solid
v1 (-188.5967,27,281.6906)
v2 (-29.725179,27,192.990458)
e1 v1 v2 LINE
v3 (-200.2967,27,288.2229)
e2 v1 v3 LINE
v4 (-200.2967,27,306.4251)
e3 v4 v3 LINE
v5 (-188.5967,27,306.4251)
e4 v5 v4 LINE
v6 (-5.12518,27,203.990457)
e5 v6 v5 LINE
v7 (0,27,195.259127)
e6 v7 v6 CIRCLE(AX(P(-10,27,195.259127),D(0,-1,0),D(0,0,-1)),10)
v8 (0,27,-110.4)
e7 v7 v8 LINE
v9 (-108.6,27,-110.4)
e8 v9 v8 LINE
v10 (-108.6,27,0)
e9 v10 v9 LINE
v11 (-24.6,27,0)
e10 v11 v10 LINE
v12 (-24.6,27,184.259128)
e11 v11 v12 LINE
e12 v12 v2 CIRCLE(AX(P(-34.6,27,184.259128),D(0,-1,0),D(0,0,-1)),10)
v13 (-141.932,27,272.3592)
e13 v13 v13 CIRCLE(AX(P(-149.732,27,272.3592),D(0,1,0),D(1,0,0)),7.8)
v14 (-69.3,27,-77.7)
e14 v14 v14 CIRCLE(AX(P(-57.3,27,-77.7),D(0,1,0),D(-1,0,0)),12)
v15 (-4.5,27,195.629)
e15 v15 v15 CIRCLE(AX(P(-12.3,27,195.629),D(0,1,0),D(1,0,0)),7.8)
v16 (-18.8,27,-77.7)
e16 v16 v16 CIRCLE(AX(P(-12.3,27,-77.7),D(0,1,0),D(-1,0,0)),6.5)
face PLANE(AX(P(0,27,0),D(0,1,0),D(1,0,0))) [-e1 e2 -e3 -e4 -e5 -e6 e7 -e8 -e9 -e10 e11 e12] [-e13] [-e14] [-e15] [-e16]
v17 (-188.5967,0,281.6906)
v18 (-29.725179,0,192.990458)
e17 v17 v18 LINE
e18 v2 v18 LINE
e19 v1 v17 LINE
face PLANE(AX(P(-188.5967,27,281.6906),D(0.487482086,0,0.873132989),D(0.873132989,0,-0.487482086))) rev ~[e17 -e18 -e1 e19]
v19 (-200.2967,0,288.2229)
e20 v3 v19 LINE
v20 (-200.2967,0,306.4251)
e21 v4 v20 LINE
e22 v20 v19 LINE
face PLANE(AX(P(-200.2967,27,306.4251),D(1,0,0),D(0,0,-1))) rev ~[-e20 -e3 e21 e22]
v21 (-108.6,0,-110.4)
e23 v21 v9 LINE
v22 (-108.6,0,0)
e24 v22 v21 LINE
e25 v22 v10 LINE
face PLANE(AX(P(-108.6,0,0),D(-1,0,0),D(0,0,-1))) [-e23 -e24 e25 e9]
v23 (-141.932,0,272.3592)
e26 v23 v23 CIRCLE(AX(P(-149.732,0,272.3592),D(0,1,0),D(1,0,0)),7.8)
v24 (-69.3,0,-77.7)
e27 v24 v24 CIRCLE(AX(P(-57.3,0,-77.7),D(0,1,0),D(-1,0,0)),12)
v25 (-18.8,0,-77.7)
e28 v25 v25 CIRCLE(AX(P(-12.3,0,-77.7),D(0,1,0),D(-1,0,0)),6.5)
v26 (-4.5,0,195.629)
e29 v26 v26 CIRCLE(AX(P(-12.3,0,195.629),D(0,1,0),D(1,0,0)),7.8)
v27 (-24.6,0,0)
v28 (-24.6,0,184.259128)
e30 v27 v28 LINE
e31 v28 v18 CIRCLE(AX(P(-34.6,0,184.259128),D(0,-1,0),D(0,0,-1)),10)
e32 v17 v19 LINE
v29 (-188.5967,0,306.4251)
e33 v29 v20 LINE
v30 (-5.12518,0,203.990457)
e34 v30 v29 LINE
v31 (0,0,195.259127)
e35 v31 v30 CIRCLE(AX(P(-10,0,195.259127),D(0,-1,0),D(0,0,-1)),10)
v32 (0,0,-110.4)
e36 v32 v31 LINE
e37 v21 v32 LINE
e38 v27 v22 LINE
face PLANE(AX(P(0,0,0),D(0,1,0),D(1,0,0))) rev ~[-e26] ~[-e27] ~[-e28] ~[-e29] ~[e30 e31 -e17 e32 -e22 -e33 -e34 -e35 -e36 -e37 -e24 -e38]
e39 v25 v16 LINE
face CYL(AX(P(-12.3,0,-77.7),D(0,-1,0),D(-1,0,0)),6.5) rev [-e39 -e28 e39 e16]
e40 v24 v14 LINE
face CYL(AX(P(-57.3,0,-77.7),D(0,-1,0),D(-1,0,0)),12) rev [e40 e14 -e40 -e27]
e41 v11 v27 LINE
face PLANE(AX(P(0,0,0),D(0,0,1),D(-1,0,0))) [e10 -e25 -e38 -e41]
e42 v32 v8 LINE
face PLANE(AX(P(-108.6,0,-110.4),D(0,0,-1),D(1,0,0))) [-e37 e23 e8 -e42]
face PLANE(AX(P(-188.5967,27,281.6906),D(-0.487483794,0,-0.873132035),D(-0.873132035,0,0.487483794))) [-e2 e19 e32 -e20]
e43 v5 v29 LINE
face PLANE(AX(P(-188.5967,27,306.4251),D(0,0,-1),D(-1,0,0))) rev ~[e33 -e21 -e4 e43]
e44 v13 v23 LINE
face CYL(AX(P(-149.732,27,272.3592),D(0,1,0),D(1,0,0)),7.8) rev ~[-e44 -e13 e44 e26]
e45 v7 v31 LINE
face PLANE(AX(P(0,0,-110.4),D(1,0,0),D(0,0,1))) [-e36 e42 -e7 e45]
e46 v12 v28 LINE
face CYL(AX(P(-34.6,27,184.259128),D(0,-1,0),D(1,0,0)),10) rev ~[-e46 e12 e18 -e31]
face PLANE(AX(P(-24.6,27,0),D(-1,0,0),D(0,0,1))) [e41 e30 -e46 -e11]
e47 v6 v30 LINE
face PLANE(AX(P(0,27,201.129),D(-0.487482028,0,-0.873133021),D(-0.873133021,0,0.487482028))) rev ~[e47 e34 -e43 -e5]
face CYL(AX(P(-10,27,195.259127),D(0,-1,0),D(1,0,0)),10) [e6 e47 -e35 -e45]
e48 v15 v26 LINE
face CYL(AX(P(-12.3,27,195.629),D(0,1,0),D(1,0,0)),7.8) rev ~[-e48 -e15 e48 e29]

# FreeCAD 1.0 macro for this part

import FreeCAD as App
import Part
import Sketcher
Q = App.Units.Quantity


def edges_at(feature, points):
    """Names of the edges that pass closest to the given points."""
    edges = feature.Shape.Edges
    near = lambda p: min(range(len(edges)), key=lambda i: edges[i].distToShape(Part.Vertex(*p))[0])
    return sorted({f"Edge{near(p) + 1}" for p in points})

doc = App.newDocument("Part")
body = doc.addObject("PartDesign::Body", "Body")

# Sketch on XZ plane
sketch1 = body.newObject("Sketcher::SketchObject", "Sketch")
sketch1.AttachmentSupport = (doc.getObject("XZ_Plane"), [""])
sketch1.MapMode = "FlatFace"
sketch1.addGeometry(Part.LineSegment(App.Vector(-108.6, 0, 0), App.Vector(0, 0, 0)), False)
sketch1.addGeometry(Part.LineSegment(App.Vector(0, 0, 0), App.Vector(0, -110.4, 0)), False)
sketch1.addGeometry(Part.LineSegment(App.Vector(0, -110.4, 0), App.Vector(-108.6, -110.4, 0)), False)
sketch1.addGeometry(Part.LineSegment(App.Vector(-108.6, -110.4, 0), App.Vector(-108.6, 0, 0)), False)
sketch1.addGeometry(Part.Circle(App.Vector(-12.3, -77.7, 0), App.Vector(0, 0, 1), 6.5), False)
sketch1.addGeometry(Part.Circle(App.Vector(-57.3, -77.7, 0), App.Vector(0, 0, 1), 12), False)
sketch1.addConstraint(Sketcher.Constraint("Coincident", 0, 2, 1, 1))
sketch1.addConstraint(Sketcher.Constraint("Coincident", 1, 2, 2, 1))
sketch1.addConstraint(Sketcher.Constraint("Coincident", 2, 2, 3, 1))
sketch1.addConstraint(Sketcher.Constraint("Coincident", 3, 2, 0, 1))
sketch1.addConstraint(Sketcher.Constraint("Horizontal", 0))
sketch1.addConstraint(Sketcher.Constraint("Vertical", 1))
sketch1.addConstraint(Sketcher.Constraint("Horizontal", 2))
sketch1.addConstraint(Sketcher.Constraint("Vertical", 3))
sketch1.addConstraint(Sketcher.Constraint("Coincident", 0, 2, -1, 1))
sketch1.addConstraint(Sketcher.Constraint("Horizontal", 4, 3, 5, 3))
sketch1.addConstraint(Sketcher.Constraint("Diameter", 4, Q("13 mm")))
sketch1.addConstraint(Sketcher.Constraint("Diameter", 5, Q("24 mm")))
sketch1.addConstraint(Sketcher.Constraint("DistanceX", 0, 1, 0, 2, Q("108.6 mm")))
sketch1.addConstraint(Sketcher.Constraint("DistanceY", 1, 2, 1, 1, Q("110.4 mm")))
sketch1.addConstraint(Sketcher.Constraint("DistanceX", 5, 3, 4, 3, Q("45 mm")))
sketch1.addConstraint(Sketcher.Constraint("DistanceX", 4, 3, -1, 1, Q("12.3 mm")))
sketch1.addConstraint(Sketcher.Constraint("DistanceY", 1, 2, 4, 3, Q("32.7 mm")))
pad1 = body.newObject("PartDesign::Pad", "Pad")
pad1.Profile = sketch1
pad1.Length = 27
pad1.Reversed = True

# Sketch on XZ plane
sketch2 = body.newObject("Sketcher::SketchObject", "Sketch001")
sketch2.AttachmentSupport = (doc.getObject("XZ_Plane"), [""])
sketch2.MapMode = "FlatFace"
sketch2.AttachmentOffset = App.Placement(App.Vector(0, 0, -27), App.Rotation())
sketch2.addGeometry(Part.LineSegment(App.Vector(0, 0, 0), App.Vector(-24.6, 0, 0)), False)
sketch2.addGeometry(Part.LineSegment(App.Vector(-24.6, 0, 0), App.Vector(-24.6, 190.129, 0)), False)
sketch2.addGeometry(Part.LineSegment(App.Vector(-24.6, 190.129, 0), App.Vector(-188.5967, 281.6906, 0)), False)
sketch2.addGeometry(Part.LineSegment(App.Vector(-188.5967, 281.6906, 0), App.Vector(-188.5967, 306.4251, 0)), False)
sketch2.addGeometry(Part.LineSegment(App.Vector(-188.5967, 306.4251, 0), App.Vector(0, 201.129, 0)), False)
sketch2.addGeometry(Part.LineSegment(App.Vector(0, 201.129, 0), App.Vector(0, 0, 0)), False)
sketch2.addGeometry(Part.Circle(App.Vector(-12.3, 195.629, 0), App.Vector(0, 0, 1), 7.8), False)
sketch2.addConstraint(Sketcher.Constraint("Coincident", 0, 2, 1, 1))
sketch2.addConstraint(Sketcher.Constraint("Coincident", 1, 2, 2, 1))
sketch2.addConstraint(Sketcher.Constraint("Coincident", 2, 2, 3, 1))
sketch2.addConstraint(Sketcher.Constraint("Coincident", 3, 2, 4, 1))
sketch2.addConstraint(Sketcher.Constraint("Coincident", 4, 2, 5, 1))
sketch2.addConstraint(Sketcher.Constraint("Coincident", 5, 2, 0, 1))
sketch2.addConstraint(Sketcher.Constraint("Horizontal", 0))
sketch2.addConstraint(Sketcher.Constraint("Vertical", 1))
sketch2.addConstraint(Sketcher.Constraint("Vertical", 3))
sketch2.addConstraint(Sketcher.Constraint("Vertical", 5))
sketch2.addConstraint(Sketcher.Constraint("Coincident", 5, 2, -1, 1))
sketch2.addConstraint(Sketcher.Constraint("Parallel", 2, 4))
sketch2.addConstraint(Sketcher.Constraint("Diameter", 6, Q("15.6 mm")))
sketch2.addConstraint(Sketcher.Constraint("Distance", 4, Q("216 mm")))
sketch2.addConstraint(Sketcher.Constraint("DistanceX", 0, 2, 0, 1, Q("24.6 mm")))
sketch2.addConstraint(Sketcher.Constraint("DistanceX", 6, 3, -1, 1, Q("12.3 mm")))
sketch2.addConstraint(Sketcher.Constraint("DistanceY", 1, 2, 6, 3, Q("5.5 mm")))
sketch2.addConstraint(Sketcher.Constraint("DistanceY", 6, 3, 4, 2, Q("5.5 mm")))
sketch2.addConstraint(Sketcher.Constraint("DistanceY", -1, 1, 6, 3, Q("195.629 mm")))
sketch2.addConstraint(Sketcher.Constraint("DistanceY", 3, 1, 3, 2, Q("24.7345 mm")))
pad2 = body.newObject("PartDesign::Pad", "Pad001")
pad2.Profile = sketch2
pad2.Length = 27
doc.recompute()

fillet = body.newObject("PartDesign::Fillet", "Fillet")
fillet.Base = (pad2, edges_at(pad2, [(-24.6, 13.5, 190.129), (0, 13.5, 201.129)]))
fillet.Radius = 10

# Sketch on XZ plane
sketch3 = body.newObject("Sketcher::SketchObject", "Sketch002")
sketch3.AttachmentSupport = (doc.getObject("XZ_Plane"), [""])
sketch3.MapMode = "FlatFace"
sketch3.AttachmentOffset = App.Placement(App.Vector(0, 0, -27), App.Rotation())
sketch3.addGeometry(Part.LineSegment(App.Vector(-188.5967, 306.4251, 0), App.Vector(-188.5967, 281.6906, 0)), False)
sketch3.addGeometry(Part.LineSegment(App.Vector(-188.5967, 281.6906, 0), App.Vector(-200.2967, 288.2229, 0)), False)
sketch3.addGeometry(Part.LineSegment(App.Vector(-200.2967, 288.2229, 0), App.Vector(-200.2967, 306.4251, 0)), False)
sketch3.addGeometry(Part.LineSegment(App.Vector(-200.2967, 306.4251, 0), App.Vector(-188.5967, 306.4251, 0)), False)
sketch3.addConstraint(Sketcher.Constraint("Coincident", 0, 2, 1, 1))
sketch3.addConstraint(Sketcher.Constraint("Coincident", 1, 2, 2, 1))
sketch3.addConstraint(Sketcher.Constraint("Coincident", 2, 2, 3, 1))
sketch3.addConstraint(Sketcher.Constraint("Coincident", 3, 2, 0, 1))
sketch3.addConstraint(Sketcher.Constraint("Vertical", 0))
sketch3.addConstraint(Sketcher.Constraint("Vertical", 2))
sketch3.addConstraint(Sketcher.Constraint("Horizontal", 3))
sketch3.addConstraint(Sketcher.Constraint("DistanceX", 3, 1, 3, 2, Q("11.7 mm")))
sketch3.addConstraint(Sketcher.Constraint("Distance", 1, Q("13.4 mm")))
sketch3.addConstraint(Sketcher.Constraint("DistanceY", 0, 2, 0, 1, Q("24.7345 mm")))
sketch3.addConstraint(Sketcher.Constraint("DistanceY", -1, 1, 1, 2, Q("288.223 mm")))
sketch3.addConstraint(Sketcher.Constraint("DistanceX", 0, 2, -1, 1, Q("188.5967 mm")))
pad3 = body.newObject("PartDesign::Pad", "Pad002")
pad3.Profile = sketch3
pad3.Length = 27

# Sketch on XZ plane
sketch4 = body.newObject("Sketcher::SketchObject", "Sketch003")
sketch4.AttachmentSupport = (doc.getObject("XZ_Plane"), [""])
sketch4.MapMode = "FlatFace"
sketch4.AttachmentOffset = App.Placement(App.Vector(0, 0, -27), App.Rotation())
sketch4.addGeometry(Part.Circle(App.Vector(-149.732, 272.3592, 0), App.Vector(0, 0, 1), 7.8), False)
sketch4.addConstraint(Sketcher.Constraint("Diameter", 0, Q("15.6 mm")))
sketch4.addConstraint(Sketcher.Constraint("DistanceX", 0, 3, -1, 1, Q("149.732 mm")))
sketch4.addConstraint(Sketcher.Constraint("DistanceY", -1, 1, 0, 3, Q("272.3592 mm")))
pocket1 = body.newObject("PartDesign::Pocket", "Pocket")
pocket1.Profile = sketch4
pocket1.Length = 27
pocket1.Reversed = True

doc.recompute()
